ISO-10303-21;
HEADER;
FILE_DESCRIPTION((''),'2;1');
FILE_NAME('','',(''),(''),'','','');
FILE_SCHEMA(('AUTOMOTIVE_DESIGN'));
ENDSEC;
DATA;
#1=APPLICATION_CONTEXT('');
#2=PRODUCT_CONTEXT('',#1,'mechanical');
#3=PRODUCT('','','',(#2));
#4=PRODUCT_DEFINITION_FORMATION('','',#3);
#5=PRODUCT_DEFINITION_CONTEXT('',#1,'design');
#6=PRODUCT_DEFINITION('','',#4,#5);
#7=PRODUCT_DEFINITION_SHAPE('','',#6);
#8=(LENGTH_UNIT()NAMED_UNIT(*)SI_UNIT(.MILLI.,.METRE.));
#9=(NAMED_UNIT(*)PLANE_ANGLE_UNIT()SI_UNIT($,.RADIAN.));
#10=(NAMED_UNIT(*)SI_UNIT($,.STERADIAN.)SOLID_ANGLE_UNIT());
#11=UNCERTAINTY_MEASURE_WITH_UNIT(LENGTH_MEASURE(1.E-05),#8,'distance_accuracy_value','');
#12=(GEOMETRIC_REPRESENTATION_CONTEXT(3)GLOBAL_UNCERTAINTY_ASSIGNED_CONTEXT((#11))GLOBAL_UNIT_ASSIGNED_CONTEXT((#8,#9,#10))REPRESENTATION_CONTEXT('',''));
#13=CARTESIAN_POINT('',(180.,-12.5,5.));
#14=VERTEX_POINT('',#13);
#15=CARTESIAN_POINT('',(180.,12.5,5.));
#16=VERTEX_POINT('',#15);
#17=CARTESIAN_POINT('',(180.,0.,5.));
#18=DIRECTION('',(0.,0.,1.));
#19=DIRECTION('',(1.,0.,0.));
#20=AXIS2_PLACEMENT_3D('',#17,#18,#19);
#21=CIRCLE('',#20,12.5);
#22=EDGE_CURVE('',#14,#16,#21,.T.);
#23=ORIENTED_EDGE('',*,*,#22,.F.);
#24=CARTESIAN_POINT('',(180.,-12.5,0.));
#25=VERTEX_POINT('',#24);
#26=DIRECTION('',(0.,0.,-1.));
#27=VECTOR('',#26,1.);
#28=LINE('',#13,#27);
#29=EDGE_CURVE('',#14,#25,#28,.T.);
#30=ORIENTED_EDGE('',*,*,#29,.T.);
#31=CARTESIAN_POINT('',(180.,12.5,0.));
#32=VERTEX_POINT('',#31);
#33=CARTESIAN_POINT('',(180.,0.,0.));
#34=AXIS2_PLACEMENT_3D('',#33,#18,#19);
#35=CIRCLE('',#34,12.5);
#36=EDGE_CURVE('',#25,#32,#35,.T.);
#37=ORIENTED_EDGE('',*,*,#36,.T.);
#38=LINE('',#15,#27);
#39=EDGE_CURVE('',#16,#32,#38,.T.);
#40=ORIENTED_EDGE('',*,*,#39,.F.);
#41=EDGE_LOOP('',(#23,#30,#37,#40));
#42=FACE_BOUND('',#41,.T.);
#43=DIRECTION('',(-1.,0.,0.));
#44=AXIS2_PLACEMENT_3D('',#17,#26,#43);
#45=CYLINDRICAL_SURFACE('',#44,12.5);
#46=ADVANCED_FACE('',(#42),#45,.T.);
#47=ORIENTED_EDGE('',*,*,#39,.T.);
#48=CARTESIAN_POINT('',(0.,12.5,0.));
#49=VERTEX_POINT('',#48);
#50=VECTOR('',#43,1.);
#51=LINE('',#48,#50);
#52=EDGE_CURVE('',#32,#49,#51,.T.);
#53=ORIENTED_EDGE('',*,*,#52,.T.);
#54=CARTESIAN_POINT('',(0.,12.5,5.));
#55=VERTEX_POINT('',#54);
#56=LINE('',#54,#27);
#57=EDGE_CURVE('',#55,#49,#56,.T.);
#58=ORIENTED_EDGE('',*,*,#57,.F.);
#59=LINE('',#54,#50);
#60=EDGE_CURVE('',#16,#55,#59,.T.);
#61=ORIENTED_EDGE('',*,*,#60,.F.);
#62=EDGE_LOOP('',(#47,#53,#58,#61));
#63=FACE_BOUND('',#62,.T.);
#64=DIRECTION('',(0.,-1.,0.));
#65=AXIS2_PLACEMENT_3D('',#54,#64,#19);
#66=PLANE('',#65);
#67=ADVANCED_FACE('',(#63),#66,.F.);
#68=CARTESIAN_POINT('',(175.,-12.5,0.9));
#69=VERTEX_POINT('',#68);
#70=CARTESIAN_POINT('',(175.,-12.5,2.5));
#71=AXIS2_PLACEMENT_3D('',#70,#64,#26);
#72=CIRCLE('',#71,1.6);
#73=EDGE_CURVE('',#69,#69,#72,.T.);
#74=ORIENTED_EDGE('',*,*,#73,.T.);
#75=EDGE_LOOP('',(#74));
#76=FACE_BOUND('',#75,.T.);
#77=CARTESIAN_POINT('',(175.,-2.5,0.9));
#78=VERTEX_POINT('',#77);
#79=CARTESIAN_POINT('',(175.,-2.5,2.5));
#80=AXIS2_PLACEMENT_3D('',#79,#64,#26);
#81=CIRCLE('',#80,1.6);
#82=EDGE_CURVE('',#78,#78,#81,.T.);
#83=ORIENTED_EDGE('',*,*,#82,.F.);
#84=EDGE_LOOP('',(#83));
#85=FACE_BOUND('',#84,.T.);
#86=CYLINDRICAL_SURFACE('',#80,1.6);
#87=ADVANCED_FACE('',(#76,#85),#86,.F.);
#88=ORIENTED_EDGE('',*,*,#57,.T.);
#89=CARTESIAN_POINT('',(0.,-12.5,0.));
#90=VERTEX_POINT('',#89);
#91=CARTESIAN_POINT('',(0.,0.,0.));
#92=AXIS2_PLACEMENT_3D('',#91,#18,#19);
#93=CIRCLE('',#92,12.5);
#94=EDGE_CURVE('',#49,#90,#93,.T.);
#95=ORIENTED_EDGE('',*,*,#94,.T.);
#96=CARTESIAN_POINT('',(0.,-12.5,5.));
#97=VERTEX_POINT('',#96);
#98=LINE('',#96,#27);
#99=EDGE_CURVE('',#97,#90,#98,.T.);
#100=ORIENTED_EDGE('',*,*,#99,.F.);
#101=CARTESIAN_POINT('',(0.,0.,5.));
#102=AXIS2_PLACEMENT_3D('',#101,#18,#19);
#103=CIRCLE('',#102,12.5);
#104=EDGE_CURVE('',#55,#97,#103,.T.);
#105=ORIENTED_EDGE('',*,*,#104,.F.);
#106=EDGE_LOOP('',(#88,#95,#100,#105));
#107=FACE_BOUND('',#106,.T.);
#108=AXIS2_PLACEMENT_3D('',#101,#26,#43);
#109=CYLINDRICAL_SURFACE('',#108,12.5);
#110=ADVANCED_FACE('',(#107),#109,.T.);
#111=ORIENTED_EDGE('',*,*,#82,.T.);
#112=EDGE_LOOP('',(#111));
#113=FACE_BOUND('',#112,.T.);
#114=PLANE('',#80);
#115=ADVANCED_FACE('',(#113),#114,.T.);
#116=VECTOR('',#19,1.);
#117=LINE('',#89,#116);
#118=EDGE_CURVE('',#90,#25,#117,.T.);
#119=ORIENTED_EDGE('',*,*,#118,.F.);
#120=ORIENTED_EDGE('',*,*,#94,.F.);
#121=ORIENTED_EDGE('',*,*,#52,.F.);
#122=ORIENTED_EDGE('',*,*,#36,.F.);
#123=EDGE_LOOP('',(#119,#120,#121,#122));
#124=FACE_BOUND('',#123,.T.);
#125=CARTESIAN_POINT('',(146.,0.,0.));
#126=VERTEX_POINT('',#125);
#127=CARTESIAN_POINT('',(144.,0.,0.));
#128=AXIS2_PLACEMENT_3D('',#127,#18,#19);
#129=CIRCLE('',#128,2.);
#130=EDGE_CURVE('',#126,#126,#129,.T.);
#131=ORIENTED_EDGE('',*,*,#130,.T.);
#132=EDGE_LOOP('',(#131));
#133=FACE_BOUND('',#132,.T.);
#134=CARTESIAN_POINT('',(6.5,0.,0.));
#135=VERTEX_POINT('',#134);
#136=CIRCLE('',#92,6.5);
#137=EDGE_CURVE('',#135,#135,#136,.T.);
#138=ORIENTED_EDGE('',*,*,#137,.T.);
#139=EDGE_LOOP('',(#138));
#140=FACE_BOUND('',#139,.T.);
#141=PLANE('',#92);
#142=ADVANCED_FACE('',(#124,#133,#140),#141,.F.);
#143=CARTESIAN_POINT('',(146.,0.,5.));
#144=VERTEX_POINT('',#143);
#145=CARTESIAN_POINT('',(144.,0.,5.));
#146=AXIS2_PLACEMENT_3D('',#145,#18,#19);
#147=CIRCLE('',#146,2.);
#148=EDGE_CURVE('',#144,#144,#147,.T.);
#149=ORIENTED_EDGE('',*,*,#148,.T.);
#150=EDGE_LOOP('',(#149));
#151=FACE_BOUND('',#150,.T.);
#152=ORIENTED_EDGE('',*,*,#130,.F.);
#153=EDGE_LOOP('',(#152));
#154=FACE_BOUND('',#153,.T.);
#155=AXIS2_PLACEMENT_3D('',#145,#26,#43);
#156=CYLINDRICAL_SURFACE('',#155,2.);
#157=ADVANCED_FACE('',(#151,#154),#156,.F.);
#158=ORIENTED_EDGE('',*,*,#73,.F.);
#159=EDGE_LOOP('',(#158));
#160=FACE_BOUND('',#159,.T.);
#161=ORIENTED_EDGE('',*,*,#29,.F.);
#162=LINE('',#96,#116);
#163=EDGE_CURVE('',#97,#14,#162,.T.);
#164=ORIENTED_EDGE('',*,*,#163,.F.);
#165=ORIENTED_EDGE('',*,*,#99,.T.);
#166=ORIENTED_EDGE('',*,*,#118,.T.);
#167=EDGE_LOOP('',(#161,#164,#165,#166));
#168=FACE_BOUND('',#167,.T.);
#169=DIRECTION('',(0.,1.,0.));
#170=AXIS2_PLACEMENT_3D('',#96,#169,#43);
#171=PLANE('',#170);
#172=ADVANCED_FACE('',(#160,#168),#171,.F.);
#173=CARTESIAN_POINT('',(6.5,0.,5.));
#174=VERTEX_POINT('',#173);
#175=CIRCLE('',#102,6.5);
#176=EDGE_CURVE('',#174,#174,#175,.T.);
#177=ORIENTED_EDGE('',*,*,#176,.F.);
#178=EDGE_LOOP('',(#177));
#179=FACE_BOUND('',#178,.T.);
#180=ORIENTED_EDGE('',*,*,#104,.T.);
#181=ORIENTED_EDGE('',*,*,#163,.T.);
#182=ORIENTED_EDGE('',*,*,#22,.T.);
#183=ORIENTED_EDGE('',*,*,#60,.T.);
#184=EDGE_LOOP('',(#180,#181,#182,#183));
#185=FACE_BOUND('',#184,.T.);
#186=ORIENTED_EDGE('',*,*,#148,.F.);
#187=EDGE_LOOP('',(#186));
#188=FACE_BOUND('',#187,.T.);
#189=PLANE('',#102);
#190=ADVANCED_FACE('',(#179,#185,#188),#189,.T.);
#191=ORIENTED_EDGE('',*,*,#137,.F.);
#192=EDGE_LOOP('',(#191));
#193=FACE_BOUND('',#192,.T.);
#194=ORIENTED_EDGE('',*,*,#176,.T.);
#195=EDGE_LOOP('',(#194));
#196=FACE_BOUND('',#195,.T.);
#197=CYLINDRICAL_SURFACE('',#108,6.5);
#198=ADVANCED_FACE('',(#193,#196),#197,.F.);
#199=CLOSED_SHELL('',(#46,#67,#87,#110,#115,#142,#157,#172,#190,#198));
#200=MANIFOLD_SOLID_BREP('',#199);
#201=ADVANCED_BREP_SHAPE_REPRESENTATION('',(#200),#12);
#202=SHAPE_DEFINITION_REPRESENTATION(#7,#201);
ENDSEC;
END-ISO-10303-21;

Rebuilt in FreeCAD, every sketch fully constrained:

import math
import FreeCAD as App
import Part
import Sketcher
from FreeCAD import Vector
Q = App.Units.Quantity

doc = App.newDocument("Part")
body = doc.addObject("PartDesign::Body", "Body")

sketch1 = body.newObject("Sketcher::SketchObject", "Sketch")
sketch1.AttachmentSupport = (doc.getObject("XY_Plane"), [""])
sketch1.MapMode = "FlatFace"
sketch1.addGeometry([
    Part.LineSegment(Vector(180, 12.5, 0), Vector(0, 12.5, 0)),
    Part.ArcOfCircle(Part.Circle(Vector(0, 0, 0), Vector(0, 0, 1), 12.5), math.radians(90), math.radians(270)),
    Part.LineSegment(Vector(0, -12.5, 0), Vector(180, -12.5, 0)),
    Part.ArcOfCircle(Part.Circle(Vector(180, 0, 0), Vector(0, 0, 1), 12.5), math.radians(-90), math.radians(90)),
    Part.Circle(Vector(144, 0, 0), Vector(0, 0, 1), 2),
    Part.Circle(Vector(0, 0, 0), Vector(0, 0, 1), 6.5),
], False)
sketch1.addConstraint([
    Sketcher.Constraint("Tangent", 0, 2, 1, 1),
    Sketcher.Constraint("Tangent", 1, 2, 2, 1),
    Sketcher.Constraint("Tangent", 2, 2, 3, 1),
    Sketcher.Constraint("Tangent", 3, 2, 0, 1),
    Sketcher.Constraint("Horizontal", 0),
    Sketcher.Constraint("Horizontal", 2),
    Sketcher.Constraint("Coincident", 1, 3, -1, 1),
    Sketcher.Constraint("Coincident", 5, 3, -1, 1),
    Sketcher.Constraint("PointOnObject", 4, 3, -1),
    Sketcher.Constraint("Diameter", 4, Q("4 mm")),
    Sketcher.Constraint("Diameter", 5, Q("13 mm")),
    Sketcher.Constraint("Radius", 1, Q("12.5 mm")),
    Sketcher.Constraint("DistanceX", 0, 2, 0, 1, Q("180 mm")),
    Sketcher.Constraint("DistanceX", -1, 1, 4, 3, Q("144 mm")),
])
pad1 = body.newObject("PartDesign::Pad", "Pad")
pad1.Profile = sketch1
pad1.Length = 5

sketch2 = body.newObject("Sketcher::SketchObject", "Sketch001")
sketch2.AttachmentSupport = (doc.getObject("XZ_Plane"), [""])
sketch2.MapMode = "FlatFace"
sketch2.AttachmentOffset = App.Placement(Vector(0, 0, 12.5), App.Rotation())
sketch2.addGeometry(Part.Circle(Vector(175, 2.5, 0), Vector(0, 0, 1), 1.6), False)
sketch2.addConstraint([
    Sketcher.Constraint("Diameter", 0, Q("3.2 mm")),
    Sketcher.Constraint("DistanceX", -1, 1, 0, 3, Q("175 mm")),
    Sketcher.Constraint("DistanceY", -1, 1, 0, 3, Q("2.5 mm")),
])
pocket1 = body.newObject("PartDesign::Pocket", "Pocket")
pocket1.Profile = sketch2
pocket1.Length = 10

doc.recompute()
